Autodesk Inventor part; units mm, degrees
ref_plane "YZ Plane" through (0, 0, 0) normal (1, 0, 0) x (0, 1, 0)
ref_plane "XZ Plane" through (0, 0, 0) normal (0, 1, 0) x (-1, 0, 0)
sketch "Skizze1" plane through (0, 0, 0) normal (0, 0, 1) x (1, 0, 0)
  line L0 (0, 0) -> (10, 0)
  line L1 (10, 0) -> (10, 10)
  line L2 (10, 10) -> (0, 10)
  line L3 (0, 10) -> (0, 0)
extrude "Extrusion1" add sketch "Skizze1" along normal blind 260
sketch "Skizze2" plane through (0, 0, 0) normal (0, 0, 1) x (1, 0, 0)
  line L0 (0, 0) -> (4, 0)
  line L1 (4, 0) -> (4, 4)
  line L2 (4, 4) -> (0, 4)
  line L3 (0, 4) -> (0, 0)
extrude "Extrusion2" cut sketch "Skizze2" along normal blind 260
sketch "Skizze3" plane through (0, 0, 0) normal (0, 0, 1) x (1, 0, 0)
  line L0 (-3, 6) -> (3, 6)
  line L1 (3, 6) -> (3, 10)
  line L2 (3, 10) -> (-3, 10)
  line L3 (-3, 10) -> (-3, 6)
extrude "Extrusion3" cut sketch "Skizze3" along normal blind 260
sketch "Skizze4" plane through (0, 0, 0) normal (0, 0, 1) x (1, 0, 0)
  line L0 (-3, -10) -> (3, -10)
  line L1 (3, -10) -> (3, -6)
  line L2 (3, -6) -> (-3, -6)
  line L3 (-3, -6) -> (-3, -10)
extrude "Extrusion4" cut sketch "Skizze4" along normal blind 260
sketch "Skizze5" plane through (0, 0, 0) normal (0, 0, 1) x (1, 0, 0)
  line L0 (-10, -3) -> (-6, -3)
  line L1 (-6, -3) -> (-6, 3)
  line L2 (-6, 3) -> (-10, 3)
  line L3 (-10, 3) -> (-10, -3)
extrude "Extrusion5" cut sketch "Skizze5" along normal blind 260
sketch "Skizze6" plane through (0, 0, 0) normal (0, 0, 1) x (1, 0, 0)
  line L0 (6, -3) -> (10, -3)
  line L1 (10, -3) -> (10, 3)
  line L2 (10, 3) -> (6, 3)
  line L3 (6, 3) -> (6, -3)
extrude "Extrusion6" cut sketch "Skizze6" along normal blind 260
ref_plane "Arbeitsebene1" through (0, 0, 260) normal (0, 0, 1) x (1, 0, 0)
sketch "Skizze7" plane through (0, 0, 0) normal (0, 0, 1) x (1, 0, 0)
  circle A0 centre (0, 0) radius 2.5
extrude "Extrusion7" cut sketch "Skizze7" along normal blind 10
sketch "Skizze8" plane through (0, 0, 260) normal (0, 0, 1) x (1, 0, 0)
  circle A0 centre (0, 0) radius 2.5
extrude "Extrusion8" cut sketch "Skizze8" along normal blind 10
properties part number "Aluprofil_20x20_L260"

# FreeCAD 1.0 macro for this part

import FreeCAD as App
import Part
import Sketcher
Q = App.Units.Quantity

doc = App.newDocument("Part")
params = doc.addObject("Spreadsheet::Sheet", "Params")
for row, (alias, value) in enumerate([
    ("sketch1_width", "10 mm"),
    ("pad1_length", "260 mm"),
    ("sketch2_width", "4 mm"),
    ("pocket1_length", "260 mm"),
    ("sketch3_width", "6 mm"),
    ("sketch3_height", "4 mm"),
    ("pocket2_length", "260 mm"),
    ("sketch4_width", "6 mm"),
    ("sketch4_height", "4 mm"),
    ("pocket3_length", "260 mm"),
    ("sketch5_width", "4 mm"),
    ("sketch5_height", "6 mm"),
    ("pocket4_length", "260 mm"),
    ("sketch6_width", "4 mm"),
    ("sketch6_height", "6 mm"),
    ("pocket5_length", "260 mm"),
    ("sketch7_diameter", "5 mm"),
    ("pocket6_length", "10 mm"),
    ("sketch8_diameter", "5 mm"),
    ("pocket7_length", "10 mm"),
], start=1):
    params.set(f"A{row}", alias)
    params.set(f"B{row}", "=" + value)
    params.setAlias(f"B{row}", alias)

body = doc.addObject("PartDesign::Body", "Body")

sketch1 = doc.addObject("Sketcher::SketchObject", "Sketch")
body.addObject(sketch1)
sketch1.AttachmentSupport = (doc.XY_Plane, [""])
sketch1.MapMode = "FlatFace"
sketch1.addGeometry([
    Part.LineSegment(App.Vector(0, 10, 0), App.Vector(0, 0, 0)),
    Part.LineSegment(App.Vector(0, 0, 0), App.Vector(10, 0, 0)),
    Part.LineSegment(App.Vector(10, 0, 0), App.Vector(10, 10, 0)),
    Part.LineSegment(App.Vector(10, 10, 0), App.Vector(0, 10, 0)),
], False)
sketch1.addConstraint([
    Sketcher.Constraint("Coincident", 0, 2, 1, 1),
    Sketcher.Constraint("Coincident", 1, 2, 2, 1),
    Sketcher.Constraint("Coincident", 2, 2, 3, 1),
    Sketcher.Constraint("Coincident", 3, 2, 0, 1),
    Sketcher.Constraint("Vertical", 0),
    Sketcher.Constraint("Horizontal", 1),
    Sketcher.Constraint("Vertical", 2),
    Sketcher.Constraint("Horizontal", 3),
    Sketcher.Constraint("Coincident", 0, 2, -1, 1),
    Sketcher.Constraint("Equal", 3, 0),
    Sketcher.Constraint("DistanceX", 1, 1, 1, 2, Q("10 mm")),
])
sketch1.setExpression("Constraints[10]", "Params.sketch1_width")
pad1 = doc.addObject("PartDesign::Pad", "Pad")
body.addObject(pad1)
pad1.Profile = sketch1
pad1.setExpression("Length", "Params.pad1_length")

sketch2 = doc.addObject("Sketcher::SketchObject", "Sketch001")
body.addObject(sketch2)
sketch2.AttachmentSupport = (doc.XY_Plane, [""])
sketch2.MapMode = "FlatFace"
sketch2.addGeometry([
    Part.LineSegment(App.Vector(0, 4, 0), App.Vector(0, 0, 0)),
    Part.LineSegment(App.Vector(0, 0, 0), App.Vector(4, 0, 0)),
    Part.LineSegment(App.Vector(4, 0, 0), App.Vector(4, 4, 0)),
    Part.LineSegment(App.Vector(4, 4, 0), App.Vector(0, 4, 0)),
], False)
sketch2.addConstraint([
    Sketcher.Constraint("Coincident", 0, 2, 1, 1),
    Sketcher.Constraint("Coincident", 1, 2, 2, 1),
    Sketcher.Constraint("Coincident", 2, 2, 3, 1),
    Sketcher.Constraint("Coincident", 3, 2, 0, 1),
    Sketcher.Constraint("Vertical", 0),
    Sketcher.Constraint("Horizontal", 1),
    Sketcher.Constraint("Vertical", 2),
    Sketcher.Constraint("Horizontal", 3),
    Sketcher.Constraint("Coincident", 0, 2, -1, 1),
    Sketcher.Constraint("Equal", 3, 0),
    Sketcher.Constraint("DistanceX", 1, 1, 1, 2, Q("4 mm")),
])
sketch2.setExpression("Constraints[10]", "Params.sketch2_width")
pocket1 = doc.addObject("PartDesign::Pocket", "Pocket")
body.addObject(pocket1)
pocket1.Profile = sketch2
pocket1.setExpression("Length", "Params.pocket1_length")
pocket1.Reversed = True

sketch3 = doc.addObject("Sketcher::SketchObject", "Sketch002")
body.addObject(sketch3)
sketch3.AttachmentSupport = (doc.XY_Plane, [""])
sketch3.MapMode = "FlatFace"
sketch3.addGeometry([
    Part.LineSegment(App.Vector(-3, 10, 0), App.Vector(-3, 6, 0)),
    Part.LineSegment(App.Vector(-3, 6, 0), App.Vector(3, 6, 0)),
    Part.LineSegment(App.Vector(3, 6, 0), App.Vector(3, 10, 0)),
    Part.LineSegment(App.Vector(3, 10, 0), App.Vector(-3, 10, 0)),
], False)
sketch3.addConstraint([
    Sketcher.Constraint("Coincident", 0, 2, 1, 1),
    Sketcher.Constraint("Coincident", 1, 2, 2, 1),
    Sketcher.Constraint("Coincident", 2, 2, 3, 1),
    Sketcher.Constraint("Coincident", 3, 2, 0, 1),
    Sketcher.Constraint("Vertical", 0),
    Sketcher.Constraint("Horizontal", 1),
    Sketcher.Constraint("Vertical", 2),
    Sketcher.Constraint("Horizontal", 3),
    Sketcher.Constraint("DistanceX", 1, 1, 1, 2, Q("6 mm")),
    Sketcher.Constraint("DistanceY", 0, 2, 0, 1, Q("4 mm")),
    Sketcher.Constraint("DistanceX", 0, 2, -1, 1, Q("3 mm")),
    Sketcher.Constraint("DistanceY", -1, 1, 0, 2, Q("6 mm")),
])
sketch3.setExpression("Constraints[8]", "Params.sketch3_width")
sketch3.setExpression("Constraints[9]", "Params.sketch3_height")
pocket2 = doc.addObject("PartDesign::Pocket", "Pocket001")
body.addObject(pocket2)
pocket2.Profile = sketch3
pocket2.setExpression("Length", "Params.pocket2_length")
pocket2.Reversed = True

sketch4 = doc.addObject("Sketcher::SketchObject", "Sketch003")
body.addObject(sketch4)
sketch4.AttachmentSupport = (doc.XY_Plane, [""])
sketch4.MapMode = "FlatFace"
sketch4.addGeometry([
    Part.LineSegment(App.Vector(-3, -6, 0), App.Vector(-3, -10, 0)),
    Part.LineSegment(App.Vector(-3, -10, 0), App.Vector(3, -10, 0)),
    Part.LineSegment(App.Vector(3, -10, 0), App.Vector(3, -6, 0)),
    Part.LineSegment(App.Vector(3, -6, 0), App.Vector(-3, -6, 0)),
], False)
sketch4.addConstraint([
    Sketcher.Constraint("Coincident", 0, 2, 1, 1),
    Sketcher.Constraint("Coincident", 1, 2, 2, 1),
    Sketcher.Constraint("Coincident", 2, 2, 3, 1),
    Sketcher.Constraint("Coincident", 3, 2, 0, 1),
    Sketcher.Constraint("Vertical", 0),
    Sketcher.Constraint("Horizontal", 1),
    Sketcher.Constraint("Vertical", 2),
    Sketcher.Constraint("Horizontal", 3),
    Sketcher.Constraint("DistanceX", 1, 1, 1, 2, Q("6 mm")),
    Sketcher.Constraint("DistanceY", 0, 2, 0, 1, Q("4 mm")),
    Sketcher.Constraint("DistanceX", 0, 2, -1, 1, Q("3 mm")),
    Sketcher.Constraint("DistanceY", 0, 2, -1, 1, Q("10 mm")),
])
sketch4.setExpression("Constraints[8]", "Params.sketch4_width")
sketch4.setExpression("Constraints[9]", "Params.sketch4_height")
pocket3 = doc.addObject("PartDesign::Pocket", "Pocket002")
body.addObject(pocket3)
pocket3.Profile = sketch4
pocket3.setExpression("Length", "Params.pocket3_length")
pocket3.Reversed = True

sketch5 = doc.addObject("Sketcher::SketchObject", "Sketch004")
body.addObject(sketch5)
sketch5.AttachmentSupport = (doc.XY_Plane, [""])
sketch5.MapMode = "FlatFace"
sketch5.addGeometry([
    Part.LineSegment(App.Vector(-10, 3, 0), App.Vector(-10, -3, 0)),
    Part.LineSegment(App.Vector(-10, -3, 0), App.Vector(-6, -3, 0)),
    Part.LineSegment(App.Vector(-6, -3, 0), App.Vector(-6, 3, 0)),
    Part.LineSegment(App.Vector(-6, 3, 0), App.Vector(-10, 3, 0)),
], False)
sketch5.addConstraint([
    Sketcher.Constraint("Coincident", 0, 2, 1, 1),
    Sketcher.Constraint("Coincident", 1, 2, 2, 1),
    Sketcher.Constraint("Coincident", 2, 2, 3, 1),
    Sketcher.Constraint("Coincident", 3, 2, 0, 1),
    Sketcher.Constraint("Vertical", 0),
    Sketcher.Constraint("Horizontal", 1),
    Sketcher.Constraint("Vertical", 2),
    Sketcher.Constraint("Horizontal", 3),
    Sketcher.Constraint("DistanceX", 1, 1, 1, 2, Q("4 mm")),
    Sketcher.Constraint("DistanceY", 0, 2, 0, 1, Q("6 mm")),
    Sketcher.Constraint("DistanceX", 0, 2, -1, 1, Q("10 mm")),
    Sketcher.Constraint("DistanceY", 0, 2, -1, 1, Q("3 mm")),
])
sketch5.setExpression("Constraints[8]", "Params.sketch5_width")
sketch5.setExpression("Constraints[9]", "Params.sketch5_height")
pocket4 = doc.addObject("PartDesign::Pocket", "Pocket003")
body.addObject(pocket4)
pocket4.Profile = sketch5
pocket4.setExpression("Length", "Params.pocket4_length")
pocket4.Reversed = True

sketch6 = doc.addObject("Sketcher::SketchObject", "Sketch005")
body.addObject(sketch6)
sketch6.AttachmentSupport = (doc.XY_Plane, [""])
sketch6.MapMode = "FlatFace"
sketch6.addGeometry([
    Part.LineSegment(App.Vector(6, 3, 0), App.Vector(6, -3, 0)),
    Part.LineSegment(App.Vector(6, -3, 0), App.Vector(10, -3, 0)),
    Part.LineSegment(App.Vector(10, -3, 0), App.Vector(10, 3, 0)),
    Part.LineSegment(App.Vector(10, 3, 0), App.Vector(6, 3, 0)),
], False)
sketch6.addConstraint([
    Sketcher.Constraint("Coincident", 0, 2, 1, 1),
    Sketcher.Constraint("Coincident", 1, 2, 2, 1),
    Sketcher.Constraint("Coincident", 2, 2, 3, 1),
    Sketcher.Constraint("Coincident", 3, 2, 0, 1),
    Sketcher.Constraint("Vertical", 0),
    Sketcher.Constraint("Horizontal", 1),
    Sketcher.Constraint("Vertical", 2),
    Sketcher.Constraint("Horizontal", 3),
    Sketcher.Constraint("DistanceX", 1, 1, 1, 2, Q("4 mm")),
    Sketcher.Constraint("DistanceY", 0, 2, 0, 1, Q("6 mm")),
    Sketcher.Constraint("DistanceX", -1, 1, 0, 2, Q("6 mm")),
    Sketcher.Constraint("DistanceY", 0, 2, -1, 1, Q("3 mm")),
])
sketch6.setExpression("Constraints[8]", "Params.sketch6_width")
sketch6.setExpression("Constraints[9]", "Params.sketch6_height")
pocket5 = doc.addObject("PartDesign::Pocket", "Pocket004")
body.addObject(pocket5)
pocket5.Profile = sketch6
pocket5.setExpression("Length", "Params.pocket5_length")
pocket5.Reversed = True

sketch7 = doc.addObject("Sketcher::SketchObject", "Sketch006")
body.addObject(sketch7)
sketch7.AttachmentSupport = (doc.XY_Plane, [""])
sketch7.MapMode = "FlatFace"
sketch7.addGeometry(Part.Circle(App.Vector(0, 0, 0), App.Vector(0, 0, 1), 2.5), False)
sketch7.addConstraint([
    Sketcher.Constraint("Coincident", 0, 3, -1, 1),
    Sketcher.Constraint("Diameter", 0, Q("5 mm")),
])
sketch7.setExpression("Constraints[1]", "Params.sketch7_diameter")
pocket6 = doc.addObject("PartDesign::Pocket", "Pocket005")
body.addObject(pocket6)
pocket6.Profile = sketch7
pocket6.setExpression("Length", "Params.pocket6_length")
pocket6.Reversed = True

sketch8 = doc.addObject("Sketcher::SketchObject", "Sketch007")
body.addObject(sketch8)
sketch8.AttachmentSupport = (doc.XY_Plane, [""])
sketch8.MapMode = "FlatFace"
sketch8.AttachmentOffset = App.Placement(App.Vector(0, 0, 260), App.Rotation())
sketch8.addGeometry(Part.Circle(App.Vector(0, 0, 0), App.Vector(0, 0, 1), 2.5), False)
sketch8.addConstraint([
    Sketcher.Constraint("Coincident", 0, 3, -1, 1),
    Sketcher.Constraint("Diameter", 0, Q("5 mm")),
])
sketch8.setExpression("Constraints[1]", "Params.sketch8_diameter")
pocket7 = doc.addObject("PartDesign::Pocket", "Pocket006")
body.addObject(pocket7)
pocket7.Profile = sketch8
pocket7.setExpression("Length", "Params.pocket7_length")
pocket7.Reversed = True

doc.recompute()
